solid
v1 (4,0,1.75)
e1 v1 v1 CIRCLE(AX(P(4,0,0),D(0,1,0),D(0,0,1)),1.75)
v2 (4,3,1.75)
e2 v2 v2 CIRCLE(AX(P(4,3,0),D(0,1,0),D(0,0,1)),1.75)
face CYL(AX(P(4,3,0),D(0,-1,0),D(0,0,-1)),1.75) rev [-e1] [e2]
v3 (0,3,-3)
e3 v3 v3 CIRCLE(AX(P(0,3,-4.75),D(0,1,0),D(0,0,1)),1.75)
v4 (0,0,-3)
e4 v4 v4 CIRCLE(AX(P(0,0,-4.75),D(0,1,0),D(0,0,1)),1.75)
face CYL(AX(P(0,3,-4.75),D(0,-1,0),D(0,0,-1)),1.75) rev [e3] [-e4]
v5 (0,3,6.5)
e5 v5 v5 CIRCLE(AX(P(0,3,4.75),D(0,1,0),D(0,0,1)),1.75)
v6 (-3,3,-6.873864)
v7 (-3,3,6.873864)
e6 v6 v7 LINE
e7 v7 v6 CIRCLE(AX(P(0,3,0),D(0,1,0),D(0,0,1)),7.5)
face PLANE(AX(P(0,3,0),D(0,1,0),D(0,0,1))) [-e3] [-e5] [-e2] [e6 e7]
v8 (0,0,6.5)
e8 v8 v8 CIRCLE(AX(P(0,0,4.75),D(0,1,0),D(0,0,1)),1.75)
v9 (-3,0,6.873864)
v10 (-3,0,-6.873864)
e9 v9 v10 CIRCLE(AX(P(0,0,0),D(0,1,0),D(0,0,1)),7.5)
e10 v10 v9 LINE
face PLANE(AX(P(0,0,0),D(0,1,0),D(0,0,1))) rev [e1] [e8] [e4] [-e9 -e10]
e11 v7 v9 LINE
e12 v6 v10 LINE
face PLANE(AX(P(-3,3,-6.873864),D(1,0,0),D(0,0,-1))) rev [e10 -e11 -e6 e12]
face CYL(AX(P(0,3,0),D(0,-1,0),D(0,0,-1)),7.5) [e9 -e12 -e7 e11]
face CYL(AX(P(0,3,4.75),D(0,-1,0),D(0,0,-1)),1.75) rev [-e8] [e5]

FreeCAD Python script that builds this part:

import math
import FreeCAD as App
import Part
import Sketcher

doc = App.newDocument("Part")
body = doc.addObject("PartDesign::Body", "Body")

sketch1 = body.newObject("Sketcher::SketchObject", "Sketch")
sketch1.AttachmentSupport = (doc.getObject("XZ_Plane"), [""])
sketch1.MapMode = "FlatFace"
sketch1.addGeometry([
    Part.LineSegment(App.Vector(-3, -6.873864, 0), App.Vector(-3, 6.873864, 0)),
    Part.ArcOfCircle(Part.Circle(App.Vector(0, 0, 0), App.Vector(0, 0, 1), 7.5), math.radians(-113.578178), math.radians(113.578178)),
    Part.Circle(App.Vector(0, 4.75, 0), App.Vector(0, 0, 1), 1.75),
    Part.Circle(App.Vector(0, -4.75, 0), App.Vector(0, 0, 1), 1.75),
    Part.Circle(App.Vector(4, 0, 0), App.Vector(0, 0, 1), 1.75),
], False)
sketch1.addConstraint([
    Sketcher.Constraint("Coincident", 0, 1, 1, 1),
    Sketcher.Constraint("Coincident", 1, 2, 0, 2),
    Sketcher.Constraint("Vertical", 0),
    Sketcher.Constraint("Coincident", 1, 3, -1, 1),
    Sketcher.Constraint("Equal", 2, 3),
    Sketcher.Constraint("Equal", 3, 4),
    Sketcher.Constraint("Symmetric", 2, 3, 3, 3, -1, 1),
    Sketcher.Constraint("PointOnObject", 2, 3, -2),
    Sketcher.Constraint("PointOnObject", 4, 3, -1),
    Sketcher.Constraint("Diameter", 2, 3.5),
    Sketcher.Constraint("Radius", 1, 7.5),
    Sketcher.Constraint("DistanceX", -1, 1, 4, 3, 4.0),
    Sketcher.Constraint("DistanceX", 0, 1, -1, 1, 3.0),
    Sketcher.Constraint("DistanceY", 3, 3, 2, 3, 9.5),
])
pad1 = body.newObject("PartDesign::Pad", "Pad")
pad1.Profile = sketch1
pad1.Length = 3
pad1.Reversed = True

doc.recompute()
